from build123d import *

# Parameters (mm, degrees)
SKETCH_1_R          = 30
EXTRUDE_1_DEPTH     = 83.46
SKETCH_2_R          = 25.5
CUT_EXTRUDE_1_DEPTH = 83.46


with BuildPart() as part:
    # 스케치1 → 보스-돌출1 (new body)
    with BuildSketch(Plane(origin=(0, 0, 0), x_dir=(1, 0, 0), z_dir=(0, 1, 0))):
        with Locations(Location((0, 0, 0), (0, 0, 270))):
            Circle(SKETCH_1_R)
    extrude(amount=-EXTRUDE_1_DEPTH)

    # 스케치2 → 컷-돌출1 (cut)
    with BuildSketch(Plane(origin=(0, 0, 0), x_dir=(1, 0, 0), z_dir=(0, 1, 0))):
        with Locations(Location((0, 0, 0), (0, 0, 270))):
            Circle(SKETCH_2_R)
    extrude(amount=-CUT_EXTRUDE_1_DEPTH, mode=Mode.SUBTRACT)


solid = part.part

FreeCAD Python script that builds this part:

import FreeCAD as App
import Part
import Sketcher
from FreeCAD import Vector

doc = App.newDocument("Part")
body = doc.addObject("PartDesign::Body", "Body")

# Sketch on XZ plane
sketch1 = body.newObject("Sketcher::SketchObject", "Sketch")
sketch1.AttachmentSupport = (doc.getObject("XZ_Plane"), [""])
sketch1.MapMode = "FlatFace"
sketch1.addGeometry(Part.Circle(Vector(0, 0, 0), Vector(0, 0, 1), 30), False)
sketch1.addConstraint([
    Sketcher.Constraint("Coincident", 0, 3, -1, 1),
    Sketcher.Constraint("Diameter", 0, 60.0),
])
pad1 = body.newObject("PartDesign::Pad", "Pad")
pad1.Profile = sketch1
pad1.Length = 83.46

# Sketch on XZ plane
sketch2 = body.newObject("Sketcher::SketchObject", "Sketch001")
sketch2.AttachmentSupport = (doc.getObject("XZ_Plane"), [""])
sketch2.MapMode = "FlatFace"
sketch2.addGeometry(Part.Circle(Vector(0, 0, 0), Vector(0, 0, 1), 26), False)
sketch2.addConstraint([
    Sketcher.Constraint("Coincident", 0, 3, -1, 1),
    Sketcher.Constraint("Diameter", 0, 51.0),
])
pocket1 = body.newObject("PartDesign::Pocket", "Pocket")
pocket1.Profile = sketch2
pocket1.Length = 83.46
pocket1.Reversed = True

doc.recompute()
